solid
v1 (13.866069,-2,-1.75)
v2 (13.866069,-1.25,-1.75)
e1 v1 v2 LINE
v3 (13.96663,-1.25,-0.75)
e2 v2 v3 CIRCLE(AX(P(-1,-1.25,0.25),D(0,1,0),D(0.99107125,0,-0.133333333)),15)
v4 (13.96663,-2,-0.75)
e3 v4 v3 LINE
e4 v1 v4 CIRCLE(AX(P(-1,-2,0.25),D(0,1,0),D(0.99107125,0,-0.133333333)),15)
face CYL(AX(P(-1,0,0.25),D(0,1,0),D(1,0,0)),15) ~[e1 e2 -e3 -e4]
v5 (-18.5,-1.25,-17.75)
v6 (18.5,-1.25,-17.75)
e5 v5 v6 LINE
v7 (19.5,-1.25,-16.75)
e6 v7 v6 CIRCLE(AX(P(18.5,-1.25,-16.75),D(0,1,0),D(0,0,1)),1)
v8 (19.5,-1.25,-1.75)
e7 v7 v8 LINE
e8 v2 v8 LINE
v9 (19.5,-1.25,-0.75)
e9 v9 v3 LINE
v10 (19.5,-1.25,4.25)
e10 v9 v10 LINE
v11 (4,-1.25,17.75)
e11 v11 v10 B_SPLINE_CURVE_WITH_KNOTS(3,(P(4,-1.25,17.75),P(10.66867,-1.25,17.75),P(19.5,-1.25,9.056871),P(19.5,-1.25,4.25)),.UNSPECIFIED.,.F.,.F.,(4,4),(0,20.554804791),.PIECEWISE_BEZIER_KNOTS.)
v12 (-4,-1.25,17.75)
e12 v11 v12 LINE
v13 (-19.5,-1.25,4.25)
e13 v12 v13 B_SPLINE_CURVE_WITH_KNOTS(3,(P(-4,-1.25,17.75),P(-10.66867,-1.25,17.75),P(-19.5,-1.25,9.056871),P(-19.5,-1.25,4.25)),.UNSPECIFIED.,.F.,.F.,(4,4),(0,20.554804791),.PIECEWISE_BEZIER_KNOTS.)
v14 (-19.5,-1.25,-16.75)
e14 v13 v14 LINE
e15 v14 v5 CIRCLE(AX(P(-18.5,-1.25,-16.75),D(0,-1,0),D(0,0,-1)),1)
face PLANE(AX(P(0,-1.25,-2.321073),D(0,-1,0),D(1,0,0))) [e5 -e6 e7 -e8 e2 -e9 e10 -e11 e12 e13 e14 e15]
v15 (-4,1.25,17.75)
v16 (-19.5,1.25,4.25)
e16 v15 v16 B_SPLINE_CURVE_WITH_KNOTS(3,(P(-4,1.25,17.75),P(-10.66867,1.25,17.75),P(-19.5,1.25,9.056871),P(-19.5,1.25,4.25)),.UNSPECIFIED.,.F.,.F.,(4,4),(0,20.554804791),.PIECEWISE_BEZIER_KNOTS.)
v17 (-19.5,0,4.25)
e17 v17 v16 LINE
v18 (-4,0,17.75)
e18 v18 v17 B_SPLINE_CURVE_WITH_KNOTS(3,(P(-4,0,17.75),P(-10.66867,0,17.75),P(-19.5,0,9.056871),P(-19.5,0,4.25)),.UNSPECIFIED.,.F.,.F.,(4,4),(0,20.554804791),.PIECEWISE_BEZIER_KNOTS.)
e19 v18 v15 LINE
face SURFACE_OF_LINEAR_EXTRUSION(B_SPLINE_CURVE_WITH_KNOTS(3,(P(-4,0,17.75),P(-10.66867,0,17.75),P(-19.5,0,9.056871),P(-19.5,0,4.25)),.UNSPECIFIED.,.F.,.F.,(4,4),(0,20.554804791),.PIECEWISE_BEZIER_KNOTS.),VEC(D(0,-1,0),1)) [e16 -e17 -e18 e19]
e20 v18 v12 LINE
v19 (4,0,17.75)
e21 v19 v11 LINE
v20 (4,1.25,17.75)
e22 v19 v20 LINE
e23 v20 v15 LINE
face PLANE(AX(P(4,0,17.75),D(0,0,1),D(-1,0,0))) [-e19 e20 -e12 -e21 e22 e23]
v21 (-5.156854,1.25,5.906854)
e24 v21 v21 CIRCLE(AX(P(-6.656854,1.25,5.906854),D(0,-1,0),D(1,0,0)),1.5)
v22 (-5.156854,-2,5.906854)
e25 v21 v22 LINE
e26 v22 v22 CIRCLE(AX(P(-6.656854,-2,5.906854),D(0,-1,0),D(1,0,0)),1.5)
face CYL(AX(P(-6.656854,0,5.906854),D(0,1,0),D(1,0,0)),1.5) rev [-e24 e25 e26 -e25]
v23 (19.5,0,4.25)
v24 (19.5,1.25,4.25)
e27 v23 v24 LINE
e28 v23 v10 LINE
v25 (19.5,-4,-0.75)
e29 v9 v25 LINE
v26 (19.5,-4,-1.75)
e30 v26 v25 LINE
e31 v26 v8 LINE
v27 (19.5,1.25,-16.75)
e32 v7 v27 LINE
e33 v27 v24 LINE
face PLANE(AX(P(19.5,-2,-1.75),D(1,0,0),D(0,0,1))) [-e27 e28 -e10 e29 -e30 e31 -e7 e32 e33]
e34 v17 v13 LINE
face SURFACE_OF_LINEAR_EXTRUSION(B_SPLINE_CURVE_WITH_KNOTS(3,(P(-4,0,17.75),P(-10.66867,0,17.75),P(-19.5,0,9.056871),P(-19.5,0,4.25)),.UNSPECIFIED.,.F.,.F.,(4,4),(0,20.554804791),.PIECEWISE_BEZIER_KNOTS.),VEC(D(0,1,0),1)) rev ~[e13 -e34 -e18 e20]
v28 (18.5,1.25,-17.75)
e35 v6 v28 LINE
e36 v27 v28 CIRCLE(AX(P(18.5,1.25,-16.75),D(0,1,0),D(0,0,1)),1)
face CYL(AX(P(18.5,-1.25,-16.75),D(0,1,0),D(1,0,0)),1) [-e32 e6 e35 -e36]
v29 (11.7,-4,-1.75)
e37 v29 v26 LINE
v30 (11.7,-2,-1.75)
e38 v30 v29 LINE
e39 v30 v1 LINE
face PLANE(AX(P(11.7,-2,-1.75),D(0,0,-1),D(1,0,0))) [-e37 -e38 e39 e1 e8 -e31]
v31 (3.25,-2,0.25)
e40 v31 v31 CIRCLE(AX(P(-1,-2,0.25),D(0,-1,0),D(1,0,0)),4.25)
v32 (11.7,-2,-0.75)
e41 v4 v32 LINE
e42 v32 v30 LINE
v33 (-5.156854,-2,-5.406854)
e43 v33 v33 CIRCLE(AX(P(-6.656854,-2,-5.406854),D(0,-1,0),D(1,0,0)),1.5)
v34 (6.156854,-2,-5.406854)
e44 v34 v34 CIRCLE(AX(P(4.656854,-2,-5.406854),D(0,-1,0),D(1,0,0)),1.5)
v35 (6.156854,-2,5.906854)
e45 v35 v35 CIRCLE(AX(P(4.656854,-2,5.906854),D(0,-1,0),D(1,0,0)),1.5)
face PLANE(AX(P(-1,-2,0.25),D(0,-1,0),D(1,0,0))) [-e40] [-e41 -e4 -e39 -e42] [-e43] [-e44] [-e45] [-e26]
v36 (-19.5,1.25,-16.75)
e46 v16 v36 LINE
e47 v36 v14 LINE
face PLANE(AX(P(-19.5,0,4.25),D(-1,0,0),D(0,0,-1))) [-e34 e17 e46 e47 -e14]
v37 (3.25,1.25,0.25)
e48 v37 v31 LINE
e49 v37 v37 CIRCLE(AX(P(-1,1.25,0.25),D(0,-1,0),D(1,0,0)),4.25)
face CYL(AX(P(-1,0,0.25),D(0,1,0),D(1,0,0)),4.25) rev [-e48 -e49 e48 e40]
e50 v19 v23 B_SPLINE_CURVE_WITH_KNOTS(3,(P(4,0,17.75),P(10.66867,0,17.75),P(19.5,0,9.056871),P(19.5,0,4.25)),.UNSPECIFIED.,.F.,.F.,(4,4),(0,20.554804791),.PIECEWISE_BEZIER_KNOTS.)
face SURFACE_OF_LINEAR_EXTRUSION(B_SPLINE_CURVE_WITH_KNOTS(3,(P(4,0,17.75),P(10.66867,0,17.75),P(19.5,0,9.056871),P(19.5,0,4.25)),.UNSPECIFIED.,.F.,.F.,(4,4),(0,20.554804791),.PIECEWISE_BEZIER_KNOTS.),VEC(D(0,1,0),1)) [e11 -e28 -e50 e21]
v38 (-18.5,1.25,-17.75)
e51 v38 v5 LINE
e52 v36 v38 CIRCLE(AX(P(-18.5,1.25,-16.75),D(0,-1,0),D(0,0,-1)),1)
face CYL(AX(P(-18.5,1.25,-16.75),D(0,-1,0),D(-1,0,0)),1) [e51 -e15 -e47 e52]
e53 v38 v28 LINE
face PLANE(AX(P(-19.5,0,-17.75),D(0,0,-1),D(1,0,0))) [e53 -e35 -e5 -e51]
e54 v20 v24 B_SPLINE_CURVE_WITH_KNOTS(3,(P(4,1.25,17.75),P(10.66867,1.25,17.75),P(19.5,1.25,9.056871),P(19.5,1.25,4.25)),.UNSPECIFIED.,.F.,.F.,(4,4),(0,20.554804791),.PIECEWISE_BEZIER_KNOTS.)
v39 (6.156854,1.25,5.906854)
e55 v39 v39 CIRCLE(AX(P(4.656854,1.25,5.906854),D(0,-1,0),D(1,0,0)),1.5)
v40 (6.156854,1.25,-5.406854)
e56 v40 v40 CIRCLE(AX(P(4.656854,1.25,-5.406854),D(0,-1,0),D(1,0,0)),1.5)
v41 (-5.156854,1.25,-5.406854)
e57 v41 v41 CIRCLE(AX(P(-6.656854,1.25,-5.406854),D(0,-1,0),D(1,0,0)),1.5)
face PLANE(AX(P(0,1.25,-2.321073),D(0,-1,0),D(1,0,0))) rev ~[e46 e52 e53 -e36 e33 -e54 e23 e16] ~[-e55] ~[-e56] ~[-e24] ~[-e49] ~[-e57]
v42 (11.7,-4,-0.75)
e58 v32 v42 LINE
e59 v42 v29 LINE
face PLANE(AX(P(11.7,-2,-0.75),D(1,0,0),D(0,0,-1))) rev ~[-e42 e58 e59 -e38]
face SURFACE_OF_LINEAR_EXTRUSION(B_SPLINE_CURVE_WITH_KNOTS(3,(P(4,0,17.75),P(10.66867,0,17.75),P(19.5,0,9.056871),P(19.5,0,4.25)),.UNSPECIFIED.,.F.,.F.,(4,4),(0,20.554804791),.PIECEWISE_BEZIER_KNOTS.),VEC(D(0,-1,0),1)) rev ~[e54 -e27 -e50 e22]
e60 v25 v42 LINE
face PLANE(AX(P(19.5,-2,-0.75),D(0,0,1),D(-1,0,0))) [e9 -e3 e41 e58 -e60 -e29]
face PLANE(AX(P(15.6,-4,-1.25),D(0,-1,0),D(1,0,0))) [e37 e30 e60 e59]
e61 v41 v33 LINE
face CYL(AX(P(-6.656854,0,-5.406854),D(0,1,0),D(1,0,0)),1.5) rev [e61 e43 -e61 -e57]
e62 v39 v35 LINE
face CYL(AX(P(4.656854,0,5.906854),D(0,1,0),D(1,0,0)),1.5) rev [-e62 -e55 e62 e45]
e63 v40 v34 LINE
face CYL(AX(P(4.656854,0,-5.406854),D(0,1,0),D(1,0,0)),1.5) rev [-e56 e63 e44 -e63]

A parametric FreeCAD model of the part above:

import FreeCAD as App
import Part
import Sketcher
Q = App.Units.Quantity


def edges_at(feature, points):
    """Names of the edges that pass closest to the given points."""
    edges = feature.Shape.Edges
    near = lambda p: min(range(len(edges)), key=lambda i: edges[i].distToShape(Part.Vertex(*p))[0])
    return sorted({f"Edge{near(p) + 1}" for p in points})

doc = App.newDocument("Part")
body = doc.addObject("PartDesign::Body", "Body")

sketch1 = doc.addObject("Sketcher::SketchObject", "Sketch")
body.addObject(sketch1)
sketch1.AttachmentSupport = (doc.XZ_Plane, [""])
sketch1.MapMode = "FlatFace"
sketch1.addGeometry([
    Part.LineSegment(App.Vector(4, 17.75, 0), App.Vector(-4, 17.75, 0)),
    Part.BSplineCurve([App.Vector(-4, 17.75, 0), App.Vector(-10.66867, 17.75, 0), App.Vector(-19.5, 9.056871, 0), App.Vector(-19.5, 4.25, 0)], [4, 4], [0, 20.554804791], False, 3, [1, 1, 1, 1], False),
    Part.LineSegment(App.Vector(-19.5, 4.25, 0), App.Vector(-19.5, -17.75, 0)),
    Part.LineSegment(App.Vector(-19.5, -17.75, 0), App.Vector(19.5, -17.75, 0)),
    Part.LineSegment(App.Vector(19.5, -17.75, 0), App.Vector(19.5, 4.25, 0)),
    Part.BSplineCurve([App.Vector(4, 17.75, 0), App.Vector(10.66867, 17.75, 0), App.Vector(19.5, 9.056871, 0), App.Vector(19.5, 4.25, 0)], [4, 4], [0, 20.554804791], False, 3, [1, 1, 1, 1], False),
    Part.Circle(App.Vector(-6.656854, -5.406854, 0), App.Vector(0, 0, 1), 1.5),
    Part.Circle(App.Vector(4.656854, -5.406854, 0), App.Vector(0, 0, 1), 1.5),
    Part.Circle(App.Vector(-6.656854, 5.906854, 0), App.Vector(0, 0, 1), 1.5),
    Part.Circle(App.Vector(-1, 0.25, 0), App.Vector(0, 0, 1), 4.25),
    Part.Circle(App.Vector(4.656854, 5.906854, 0), App.Vector(0, 0, 1), 1.5),
], False)
sketch1.addConstraint([
    Sketcher.Constraint("Block", 1),
    Sketcher.Constraint("Block", 5),
    Sketcher.Constraint("Coincident", 0, 2, 1, 1),
    Sketcher.Constraint("Coincident", 1, 2, 2, 1),
    Sketcher.Constraint("Coincident", 2, 2, 3, 1),
    Sketcher.Constraint("Coincident", 3, 2, 4, 1),
    Sketcher.Constraint("Coincident", 4, 2, 5, 2),
    Sketcher.Constraint("Coincident", 5, 1, 0, 1),
    Sketcher.Constraint("Vertical", 2),
    Sketcher.Constraint("Horizontal", 3),
    Sketcher.Constraint("Vertical", 4),
    Sketcher.Constraint("Equal", 6, 7),
    Sketcher.Constraint("Equal", 7, 8),
    Sketcher.Constraint("Equal", 8, 10),
    Sketcher.Constraint("Horizontal", 6, 3, 7, 3),
    Sketcher.Constraint("Horizontal", 8, 3, 10, 3),
    Sketcher.Constraint("Vertical", 6, 3, 8, 3),
    Sketcher.Constraint("Vertical", 7, 3, 10, 3),
    Sketcher.Constraint("Diameter", 6, Q("3 mm")),
    Sketcher.Constraint("Diameter", 9, Q("8.5 mm")),
    Sketcher.Constraint("DistanceY", 2, 2, 2, 1, Q("22 mm")),
    Sketcher.Constraint("DistanceX", 9, 3, -1, 1, Q("1 mm")),
    Sketcher.Constraint("DistanceY", 2, 2, 9, 3, Q("18 mm")),
    Sketcher.Constraint("DistanceX", 6, 3, 7, 3, Q("11.313709 mm")),
    Sketcher.Constraint("DistanceY", 6, 3, 8, 3, Q("11.313709 mm")),
    Sketcher.Constraint("DistanceX", 6, 3, -1, 1, Q("6.656854 mm")),
    Sketcher.Constraint("DistanceY", 6, 3, -1, 1, Q("5.406854 mm")),
])
pad1 = doc.addObject("PartDesign::Pad", "Pad")
body.addObject(pad1)
pad1.Profile = sketch1
pad1.Length = 2.5
pad1.Midplane = True

sketch2 = doc.addObject("Sketcher::SketchObject", "Sketch001")
body.addObject(sketch2)
sketch2.AttachmentSupport = (doc.XZ_Plane, [""])
sketch2.MapMode = "FlatFace"
sketch2.addGeometry([
    Part.Circle(App.Vector(-1, 0.2, 0), App.Vector(0, 0, 1), 15),
    Part.Circle(App.Vector(-6.7, -5.4, 0), App.Vector(0, 0, 1), 1.5),
    Part.Circle(App.Vector(4.7, -5.4, 0), App.Vector(0, 0, 1), 1.5),
    Part.Circle(App.Vector(-6.7, 5.9, 0), App.Vector(0, 0, 1), 1.5),
    Part.Circle(App.Vector(-1, 0.2, 0), App.Vector(0, 0, 1), 4.2),
    Part.Circle(App.Vector(4.7, 5.9, 0), App.Vector(0, 0, 1), 1.5),
], False)
sketch2.addConstraint([
    Sketcher.Constraint("Coincident", 4, 3, 0, 3),
    Sketcher.Constraint("Equal", 1, 2),
    Sketcher.Constraint("Equal", 2, 3),
    Sketcher.Constraint("Equal", 3, 5),
    Sketcher.Constraint("Horizontal", 1, 3, 2, 3),
    Sketcher.Constraint("Horizontal", 3, 3, 5, 3),
    Sketcher.Constraint("Vertical", 1, 3, 3, 3),
    Sketcher.Constraint("Vertical", 2, 3, 5, 3),
    Sketcher.Constraint("Diameter", 0, Q("30 mm")),
    Sketcher.Constraint("Diameter", 1, Q("3 mm")),
    Sketcher.Constraint("Diameter", 4, Q("8.5 mm")),
    Sketcher.Constraint("DistanceX", 0, 3, -1, 1, Q("1 mm")),
    Sketcher.Constraint("DistanceY", -1, 1, 0, 3, Q("0.25 mm")),
    Sketcher.Constraint("DistanceX", 1, 3, 2, 3, Q("11.313709 mm")),
    Sketcher.Constraint("DistanceY", 1, 3, 3, 3, Q("11.313709 mm")),
    Sketcher.Constraint("DistanceX", 1, 3, -1, 1, Q("6.656854 mm")),
    Sketcher.Constraint("DistanceY", 1, 3, -1, 1, Q("5.406854 mm")),
])
pad2 = doc.addObject("PartDesign::Pad", "Pad001")
body.addObject(pad2)
pad2.Profile = sketch2
pad2.Length = 2

sketch3 = doc.addObject("Sketcher::SketchObject", "Sketch002")
body.addObject(sketch3)
sketch3.AttachmentSupport = (doc.XZ_Plane, [""])
sketch3.MapMode = "FlatFace"
sketch3.AttachmentOffset = App.Placement(App.Vector(0, 0, 2), App.Rotation())
sketch3.addGeometry([
    Part.LineSegment(App.Vector(19.5, -1.8, 0), App.Vector(19.5, -0.8, 0)),
    Part.LineSegment(App.Vector(19.5, -0.8, 0), App.Vector(11.7, -0.8, 0)),
    Part.LineSegment(App.Vector(11.7, -0.8, 0), App.Vector(11.7, -1.8, 0)),
    Part.LineSegment(App.Vector(11.7, -1.8, 0), App.Vector(19.5, -1.8, 0)),
], False)
sketch3.addConstraint([
    Sketcher.Constraint("Coincident", 0, 2, 1, 1),
    Sketcher.Constraint("Coincident", 1, 2, 2, 1),
    Sketcher.Constraint("Coincident", 2, 2, 3, 1),
    Sketcher.Constraint("Coincident", 3, 2, 0, 1),
    Sketcher.Constraint("Vertical", 0),
    Sketcher.Constraint("Horizontal", 1),
    Sketcher.Constraint("Vertical", 2),
    Sketcher.Constraint("Horizontal", 3),
    Sketcher.Constraint("DistanceY", 0, 1, 0, 2, Q("1 mm")),
    Sketcher.Constraint("DistanceX", 1, 2, 1, 1, Q("7.8 mm")),
    Sketcher.Constraint("DistanceX", -1, 1, 0, 2, Q("19.5 mm")),
    Sketcher.Constraint("DistanceY", 0, 2, -1, 1, Q("0.75 mm")),
])
pad3 = doc.addObject("PartDesign::Pad", "Pad002")
body.addObject(pad3)
pad3.Profile = sketch3
pad3.Type = "TwoLengths"
pad3.Length = 2
pad3.Length2 = 0.75
doc.recompute()

fillet = doc.addObject("PartDesign::Fillet", "Fillet")
body.addObject(fillet)
fillet.Base = (pad3, edges_at(pad3, [(19.5, 0, -17.75), (-19.5, 0, -17.75)]))
fillet.Radius = 1

doc.recompute()
